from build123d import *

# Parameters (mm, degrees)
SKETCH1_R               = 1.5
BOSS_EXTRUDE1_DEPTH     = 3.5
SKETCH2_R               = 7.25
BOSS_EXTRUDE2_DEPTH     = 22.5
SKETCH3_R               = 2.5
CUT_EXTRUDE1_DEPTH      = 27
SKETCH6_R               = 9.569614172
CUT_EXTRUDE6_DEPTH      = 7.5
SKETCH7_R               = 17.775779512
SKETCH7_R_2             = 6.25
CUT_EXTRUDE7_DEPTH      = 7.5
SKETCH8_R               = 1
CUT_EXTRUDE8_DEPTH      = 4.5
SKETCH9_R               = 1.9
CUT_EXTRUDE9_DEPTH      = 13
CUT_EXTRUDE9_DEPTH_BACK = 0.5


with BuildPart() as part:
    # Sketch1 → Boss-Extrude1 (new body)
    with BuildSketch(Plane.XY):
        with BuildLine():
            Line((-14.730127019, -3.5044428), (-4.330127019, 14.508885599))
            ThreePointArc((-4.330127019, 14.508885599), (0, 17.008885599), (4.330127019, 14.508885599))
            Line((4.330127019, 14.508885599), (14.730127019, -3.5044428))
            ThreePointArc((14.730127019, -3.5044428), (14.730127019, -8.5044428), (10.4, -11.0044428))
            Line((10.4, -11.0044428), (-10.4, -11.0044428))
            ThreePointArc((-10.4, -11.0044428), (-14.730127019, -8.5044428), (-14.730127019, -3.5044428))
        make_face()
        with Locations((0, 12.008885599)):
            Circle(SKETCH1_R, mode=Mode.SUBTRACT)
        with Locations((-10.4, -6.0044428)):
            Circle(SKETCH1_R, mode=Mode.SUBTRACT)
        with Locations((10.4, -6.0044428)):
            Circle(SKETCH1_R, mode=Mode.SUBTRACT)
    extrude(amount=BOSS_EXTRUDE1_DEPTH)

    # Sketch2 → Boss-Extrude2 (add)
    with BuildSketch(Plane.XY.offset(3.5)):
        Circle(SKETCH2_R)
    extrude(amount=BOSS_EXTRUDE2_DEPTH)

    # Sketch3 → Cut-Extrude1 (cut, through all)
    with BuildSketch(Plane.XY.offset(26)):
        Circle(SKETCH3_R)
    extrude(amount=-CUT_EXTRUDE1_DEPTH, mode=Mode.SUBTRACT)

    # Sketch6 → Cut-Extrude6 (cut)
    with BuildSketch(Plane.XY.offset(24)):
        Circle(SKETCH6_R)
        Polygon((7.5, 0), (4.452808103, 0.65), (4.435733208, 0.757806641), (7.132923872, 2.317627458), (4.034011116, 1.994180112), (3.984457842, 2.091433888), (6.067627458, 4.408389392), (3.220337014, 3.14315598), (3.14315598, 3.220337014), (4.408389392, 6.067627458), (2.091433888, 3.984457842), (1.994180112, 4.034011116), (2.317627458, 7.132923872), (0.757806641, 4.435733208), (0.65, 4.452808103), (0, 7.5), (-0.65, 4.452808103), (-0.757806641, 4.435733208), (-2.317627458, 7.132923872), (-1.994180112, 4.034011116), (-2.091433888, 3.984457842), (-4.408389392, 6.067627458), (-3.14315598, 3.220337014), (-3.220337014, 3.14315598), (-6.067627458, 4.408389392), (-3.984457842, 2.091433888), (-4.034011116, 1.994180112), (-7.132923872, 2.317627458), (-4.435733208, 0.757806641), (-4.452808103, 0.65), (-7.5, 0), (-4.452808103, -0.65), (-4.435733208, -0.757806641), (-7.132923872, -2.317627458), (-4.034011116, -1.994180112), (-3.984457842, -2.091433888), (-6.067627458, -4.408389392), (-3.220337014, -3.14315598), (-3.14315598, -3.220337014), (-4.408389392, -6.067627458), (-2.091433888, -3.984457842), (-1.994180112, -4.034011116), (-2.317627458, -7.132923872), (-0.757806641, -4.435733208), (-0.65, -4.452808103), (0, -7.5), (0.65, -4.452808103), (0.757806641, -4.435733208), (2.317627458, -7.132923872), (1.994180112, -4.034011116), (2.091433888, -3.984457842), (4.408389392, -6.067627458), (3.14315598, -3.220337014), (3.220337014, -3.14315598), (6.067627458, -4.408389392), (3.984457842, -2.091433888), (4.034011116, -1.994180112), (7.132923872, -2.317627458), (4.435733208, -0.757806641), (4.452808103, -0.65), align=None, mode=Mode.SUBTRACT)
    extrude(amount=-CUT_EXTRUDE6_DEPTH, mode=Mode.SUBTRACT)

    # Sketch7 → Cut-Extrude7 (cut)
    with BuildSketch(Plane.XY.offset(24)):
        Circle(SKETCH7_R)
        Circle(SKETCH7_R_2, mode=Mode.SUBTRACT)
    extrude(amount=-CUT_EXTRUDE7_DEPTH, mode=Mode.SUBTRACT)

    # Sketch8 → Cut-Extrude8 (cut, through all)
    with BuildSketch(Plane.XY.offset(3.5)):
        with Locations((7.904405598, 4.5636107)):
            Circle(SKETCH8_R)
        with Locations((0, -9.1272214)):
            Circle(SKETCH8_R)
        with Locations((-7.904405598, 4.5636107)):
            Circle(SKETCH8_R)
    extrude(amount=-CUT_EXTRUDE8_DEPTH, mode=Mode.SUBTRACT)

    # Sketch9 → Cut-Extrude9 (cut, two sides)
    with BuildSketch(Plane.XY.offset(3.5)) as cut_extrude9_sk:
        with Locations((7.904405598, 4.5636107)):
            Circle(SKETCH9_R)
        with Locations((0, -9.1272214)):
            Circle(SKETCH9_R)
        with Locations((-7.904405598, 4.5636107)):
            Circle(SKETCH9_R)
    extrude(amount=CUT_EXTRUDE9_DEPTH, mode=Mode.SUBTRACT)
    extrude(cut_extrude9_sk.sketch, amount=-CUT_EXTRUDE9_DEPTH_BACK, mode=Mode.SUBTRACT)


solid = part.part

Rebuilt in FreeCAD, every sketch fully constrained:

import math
import FreeCAD as App
import Part
import Sketcher

V = App.Vector
Q = App.Units.Quantity

doc = App.newDocument("Part")
params = doc.addObject("Spreadsheet::Sheet", "Params")
for row, (alias, value) in enumerate([
    ("sketch1_diameter", "3 mm"),
    ("sketch1_radius", "5 mm"),
    ("sketch1_width", "20.8 mm"),
    ("pad1_length", "3.5 mm"),
    ("sketch2_diameter", "14.5 mm"),
    ("pad2_length", "22.5 mm"),
    ("sketch3_diameter", "5 mm"),
    ("pocket2_length", "7.5 mm"),
    ("sketch5_diameter", "12.5 mm"),
    ("pocket3_length", "7.5 mm"),
    ("sketch6_diameter", "2 mm"),
    ("sketch7_diameter", "3.8 mm"),
    ("pocket5_length", "13 mm"),
    ("pocket5_length2", "0.5 mm"),
], start=1):
    params.set(f"A{row}", alias)
    params.set(f"B{row}", "=" + value)
    params.setAlias(f"B{row}", alias)

body = doc.addObject("PartDesign::Body", "Body")

# Sketch on XY plane
sketch1 = body.newObject("Sketcher::SketchObject", "Sketch")
sketch1.AttachmentSupport = (doc.getObject("XY_Plane"), [""])
sketch1.MapMode = "FlatFace"
sketch1.addGeometry(Part.LineSegment(V(-4.3, 14.5, 0), V(-14.7, -3.5, 0)), False)
sketch1.addGeometry(Part.ArcOfCircle(Part.Circle(V(-10.4, -6, 0), V(0, 0, 1), 5), math.radians(150), math.radians(270)), False)
sketch1.addGeometry(Part.LineSegment(V(-10.4, -11, 0), V(10.4, -11, 0)), False)
sketch1.addGeometry(Part.ArcOfCircle(Part.Circle(V(10.4, -6, 0), V(0, 0, 1), 5), math.radians(-90), math.radians(30)), False)
sketch1.addGeometry(Part.LineSegment(V(14.7, -3.5, 0), V(4.3, 14.5, 0)), False)
sketch1.addGeometry(Part.ArcOfCircle(Part.Circle(V(0, 12, 0), V(0, 0, 1), 5), math.radians(30), math.radians(150)), False)
sketch1.addGeometry(Part.Circle(V(10.4, -6, 0), V(0, 0, 1), 1.5), False)
sketch1.addGeometry(Part.Circle(V(-10.4, -6, 0), V(0, 0, 1), 1.5), False)
sketch1.addGeometry(Part.Circle(V(0, 12, 0), V(0, 0, 1), 1.5), False)
sketch1.addConstraint(Sketcher.Constraint("Tangent", 0, 2, 1, 1))
sketch1.addConstraint(Sketcher.Constraint("Tangent", 1, 2, 2, 1))
sketch1.addConstraint(Sketcher.Constraint("Tangent", 2, 2, 3, 1))
sketch1.addConstraint(Sketcher.Constraint("Tangent", 3, 2, 4, 1))
sketch1.addConstraint(Sketcher.Constraint("Tangent", 4, 2, 5, 1))
sketch1.addConstraint(Sketcher.Constraint("Tangent", 5, 2, 0, 1))
sketch1.addConstraint(Sketcher.Constraint("Horizontal", 2))
sketch1.addConstraint(Sketcher.Constraint("Coincident", 6, 3, 3, 3))
sketch1.addConstraint(Sketcher.Constraint("Coincident", 7, 3, 1, 3))
sketch1.addConstraint(Sketcher.Constraint("Coincident", 8, 3, 5, 3))
sketch1.addConstraint(Sketcher.Constraint("Equal", 1, 3))
sketch1.addConstraint(Sketcher.Constraint("Equal", 3, 5))
sketch1.addConstraint(Sketcher.Constraint("Equal", 6, 7))
sketch1.addConstraint(Sketcher.Constraint("Equal", 7, 8))
sketch1.addConstraint(Sketcher.Constraint("Symmetric", 0, 2, 3, 2, -2))
sketch1.addConstraint(Sketcher.Constraint("Diameter", 6, Q("3 mm")))
sketch1.addConstraint(Sketcher.Constraint("Radius", 1, Q("5 mm")))
sketch1.addConstraint(Sketcher.Constraint("Angle", 0, Q("-120 deg")))
sketch1.addConstraint(Sketcher.Constraint("DistanceX", 2, 1, 2, 2, Q("20.8 mm")))
sketch1.addConstraint(Sketcher.Constraint("DistanceY", 1, 3, -1, 1, Q("6.004443 mm")))
sketch1.setExpression("Constraints[15]", "Params.sketch1_diameter")
sketch1.setExpression("Constraints[16]", "Params.sketch1_radius")
sketch1.setExpression("Constraints[18]", "Params.sketch1_width")
pad1 = body.newObject("PartDesign::Pad", "Pad")
pad1.Profile = sketch1
pad1.setExpression("Length", "Params.pad1_length")

# Sketch on XY plane
sketch2 = body.newObject("Sketcher::SketchObject", "Sketch001")
sketch2.AttachmentSupport = (doc.getObject("XY_Plane"), [""])
sketch2.MapMode = "FlatFace"
sketch2.AttachmentOffset = App.Placement(V(0, 0, 3.5), App.Rotation())
sketch2.addGeometry(Part.Circle(V(0, 0, 0), V(0, 0, 1), 7), False)
sketch2.addConstraint(Sketcher.Constraint("Coincident", 0, 3, -1, 1))
sketch2.addConstraint(Sketcher.Constraint("Diameter", 0, Q("14.5 mm")))
sketch2.setExpression("Constraints[1]", "Params.sketch2_diameter")
pad2 = body.newObject("PartDesign::Pad", "Pad001")
pad2.Profile = sketch2
pad2.setExpression("Length", "Params.pad2_length")

# Sketch on XY plane
sketch3 = body.newObject("Sketcher::SketchObject", "Sketch002")
sketch3.AttachmentSupport = (doc.getObject("XY_Plane"), [""])
sketch3.MapMode = "FlatFace"
sketch3.AttachmentOffset = App.Placement(V(0, 0, 26), App.Rotation())
sketch3.addGeometry(Part.Circle(V(0, 0, 0), V(0, 0, 1), 2.5), False)
sketch3.addConstraint(Sketcher.Constraint("Coincident", 0, 3, -1, 1))
sketch3.addConstraint(Sketcher.Constraint("Diameter", 0, Q("5 mm")))
sketch3.setExpression("Constraints[1]", "Params.sketch3_diameter")
pocket1 = body.newObject("PartDesign::Pocket", "Pocket")
pocket1.Profile = sketch3
pocket1.Type = "ThroughAll"

# Sketch on XY plane
sketch4 = body.newObject("Sketcher::SketchObject", "Sketch003")
sketch4.AttachmentSupport = (doc.getObject("XY_Plane"), [""])
sketch4.MapMode = "FlatFace"
sketch4.AttachmentOffset = App.Placement(V(0, 0, 24), App.Rotation())
sketch4.addGeometry(Part.Circle(V(0, 0, 0), V(0, 0, 1), 9.57), False)
sketch4.addGeometry(Part.LineSegment(V(4.45, 0.65, 0), V(7.5, 0, 0)), False)
sketch4.addGeometry(Part.LineSegment(V(7.5, 0, 0), V(4.45, -0.65, 0)), False)
sketch4.addGeometry(Part.LineSegment(V(4.45, -0.65, 0), V(4.44, -0.76, 0)), False)
sketch4.addGeometry(Part.LineSegment(V(4.44, -0.76, 0), V(7.13, -2.32, 0)), False)
sketch4.addGeometry(Part.LineSegment(V(7.13, -2.32, 0), V(4.03, -1.99, 0)), False)
sketch4.addGeometry(Part.LineSegment(V(4.03, -1.99, 0), V(3.98, -2.09, 0)), False)
sketch4.addGeometry(Part.LineSegment(V(3.98, -2.09, 0), V(6.07, -4.41, 0)), False)
sketch4.addGeometry(Part.LineSegment(V(6.07, -4.41, 0), V(3.22, -3.14, 0)), False)
sketch4.addGeometry(Part.LineSegment(V(3.22, -3.14, 0), V(3.14, -3.22, 0)), False)
sketch4.addGeometry(Part.LineSegment(V(3.14, -3.22, 0), V(4.41, -6.07, 0)), False)
sketch4.addGeometry(Part.LineSegment(V(4.41, -6.07, 0), V(2.09, -3.98, 0)), False)
sketch4.addGeometry(Part.LineSegment(V(2.09, -3.98, 0), V(1.99, -4.03, 0)), False)
sketch4.addGeometry(Part.LineSegment(V(1.99, -4.03, 0), V(2.32, -7.13, 0)), False)
sketch4.addGeometry(Part.LineSegment(V(2.32, -7.13, 0), V(0.76, -4.44, 0)), False)
sketch4.addGeometry(Part.LineSegment(V(0.76, -4.44, 0), V(0.65, -4.45, 0)), False)
sketch4.addGeometry(Part.LineSegment(V(0.65, -4.45, 0), V(0, -7.5, 0)), False)
sketch4.addGeometry(Part.LineSegment(V(0, -7.5, 0), V(-0.65, -4.45, 0)), False)
sketch4.addGeometry(Part.LineSegment(V(-0.65, -4.45, 0), V(-0.76, -4.44, 0)), False)
sketch4.addGeometry(Part.LineSegment(V(-0.76, -4.44, 0), V(-2.32, -7.13, 0)), False)
sketch4.addGeometry(Part.LineSegment(V(-2.32, -7.13, 0), V(-1.99, -4.03, 0)), False)
sketch4.addGeometry(Part.LineSegment(V(-1.99, -4.03, 0), V(-2.09, -3.98, 0)), False)
sketch4.addGeometry(Part.LineSegment(V(-2.09, -3.98, 0), V(-4.41, -6.07, 0)), False)
sketch4.addGeometry(Part.LineSegment(V(-4.41, -6.07, 0), V(-3.14, -3.22, 0)), False)
sketch4.addGeometry(Part.LineSegment(V(-3.14, -3.22, 0), V(-3.22, -3.14, 0)), False)
sketch4.addGeometry(Part.LineSegment(V(-3.22, -3.14, 0), V(-6.07, -4.41, 0)), False)
sketch4.addGeometry(Part.LineSegment(V(-6.07, -4.41, 0), V(-3.98, -2.09, 0)), False)
sketch4.addGeometry(Part.LineSegment(V(-3.98, -2.09, 0), V(-4.03, -1.99, 0)), False)
sketch4.addGeometry(Part.LineSegment(V(-4.03, -1.99, 0), V(-7.13, -2.32, 0)), False)
sketch4.addGeometry(Part.LineSegment(V(-7.13, -2.32, 0), V(-4.44, -0.76, 0)), False)
sketch4.addGeometry(Part.LineSegment(V(-4.44, -0.76, 0), V(-4.45, -0.65, 0)), False)
sketch4.addGeometry(Part.LineSegment(V(-4.45, -0.65, 0), V(-7.5, 0, 0)), False)
sketch4.addGeometry(Part.LineSegment(V(-7.5, 0, 0), V(-4.45, 0.65, 0)), False)
sketch4.addGeometry(Part.LineSegment(V(-4.45, 0.65, 0), V(-4.44, 0.76, 0)), False)
sketch4.addGeometry(Part.LineSegment(V(-4.44, 0.76, 0), V(-7.13, 2.32, 0)), False)
sketch4.addGeometry(Part.LineSegment(V(-7.13, 2.32, 0), V(-4.03, 1.99, 0)), False)
sketch4.addGeometry(Part.LineSegment(V(-4.03, 1.99, 0), V(-3.98, 2.09, 0)), False)
sketch4.addGeometry(Part.LineSegment(V(-3.98, 2.09, 0), V(-6.07, 4.41, 0)), False)
sketch4.addGeometry(Part.LineSegment(V(-6.07, 4.41, 0), V(-3.22, 3.14, 0)), False)
sketch4.addGeometry(Part.LineSegment(V(-3.22, 3.14, 0), V(-3.14, 3.22, 0)), False)
sketch4.addGeometry(Part.LineSegment(V(-3.14, 3.22, 0), V(-4.41, 6.07, 0)), False)
sketch4.addGeometry(Part.LineSegment(V(-4.41, 6.07, 0), V(-2.09, 3.98, 0)), False)
sketch4.addGeometry(Part.LineSegment(V(-2.09, 3.98, 0), V(-1.99, 4.03, 0)), False)
sketch4.addGeometry(Part.LineSegment(V(-1.99, 4.03, 0), V(-2.32, 7.13, 0)), False)
sketch4.addGeometry(Part.LineSegment(V(-2.32, 7.13, 0), V(-0.76, 4.44, 0)), False)
sketch4.addGeometry(Part.LineSegment(V(-0.76, 4.44, 0), V(-0.65, 4.45, 0)), False)
sketch4.addGeometry(Part.LineSegment(V(-0.65, 4.45, 0), V(0, 7.5, 0)), False)
sketch4.addGeometry(Part.LineSegment(V(0, 7.5, 0), V(0.65, 4.45, 0)), False)
sketch4.addGeometry(Part.LineSegment(V(0.65, 4.45, 0), V(0.76, 4.44, 0)), False)
sketch4.addGeometry(Part.LineSegment(V(0.76, 4.44, 0), V(2.32, 7.13, 0)), False)
sketch4.addGeometry(Part.LineSegment(V(2.32, 7.13, 0), V(1.99, 4.03, 0)), False)
sketch4.addGeometry(Part.LineSegment(V(1.99, 4.03, 0), V(2.09, 3.98, 0)), False)
sketch4.addGeometry(Part.LineSegment(V(2.09, 3.98, 0), V(4.41, 6.07, 0)), False)
sketch4.addGeometry(Part.LineSegment(V(4.41, 6.07, 0), V(3.14, 3.22, 0)), False)
sketch4.addGeometry(Part.LineSegment(V(3.14, 3.22, 0), V(3.22, 3.14, 0)), False)
sketch4.addGeometry(Part.LineSegment(V(3.22, 3.14, 0), V(6.07, 4.41, 0)), False)
sketch4.addGeometry(Part.LineSegment(V(6.07, 4.41, 0), V(3.98, 2.09, 0)), False)
sketch4.addGeometry(Part.LineSegment(V(3.98, 2.09, 0), V(4.03, 1.99, 0)), False)
sketch4.addGeometry(Part.LineSegment(V(4.03, 1.99, 0), V(7.13, 2.32, 0)), False)
sketch4.addGeometry(Part.LineSegment(V(7.13, 2.32, 0), V(4.44, 0.76, 0)), False)
sketch4.addGeometry(Part.LineSegment(V(4.44, 0.76, 0), V(4.45, 0.65, 0)), False)
sketch4.addConstraint(Sketcher.Constraint("Coincident", 1, 2, 2, 1))
sketch4.addConstraint(Sketcher.Constraint("Coincident", 2, 2, 3, 1))
sketch4.addConstraint(Sketcher.Constraint("Coincident", 3, 2, 4, 1))
sketch4.addConstraint(Sketcher.Constraint("Coincident", 4, 2, 5, 1))
sketch4.addConstraint(Sketcher.Constraint("Coincident", 5, 2, 6, 1))
sketch4.addConstraint(Sketcher.Constraint("Coincident", 6, 2, 7, 1))
sketch4.addConstraint(Sketcher.Constraint("Coincident", 7, 2, 8, 1))
sketch4.addConstraint(Sketcher.Constraint("Coincident", 8, 2, 9, 1))
sketch4.addConstraint(Sketcher.Constraint("Coincident", 9, 2, 10, 1))
sketch4.addConstraint(Sketcher.Constraint("Coincident", 10, 2, 11, 1))
sketch4.addConstraint(Sketcher.Constraint("Coincident", 11, 2, 12, 1))
sketch4.addConstraint(Sketcher.Constraint("Coincident", 12, 2, 13, 1))
sketch4.addConstraint(Sketcher.Constraint("Coincident", 13, 2, 14, 1))
sketch4.addConstraint(Sketcher.Constraint("Coincident", 14, 2, 15, 1))
sketch4.addConstraint(Sketcher.Constraint("Coincident", 15, 2, 16, 1))
sketch4.addConstraint(Sketcher.Constraint("Coincident", 16, 2, 17, 1))
sketch4.addConstraint(Sketcher.Constraint("Coincident", 17, 2, 18, 1))
sketch4.addConstraint(Sketcher.Constraint("Coincident", 18, 2, 19, 1))
sketch4.addConstraint(Sketcher.Constraint("Coincident", 19, 2, 20, 1))
sketch4.addConstraint(Sketcher.Constraint("Coincident", 20, 2, 21, 1))
sketch4.addConstraint(Sketcher.Constraint("Coincident", 21, 2, 22, 1))
sketch4.addConstraint(Sketcher.Constraint("Coincident", 22, 2, 23, 1))
sketch4.addConstraint(Sketcher.Constraint("Coincident", 23, 2, 24, 1))
sketch4.addConstraint(Sketcher.Constraint("Coincident", 24, 2, 25, 1))
sketch4.addConstraint(Sketcher.Constraint("Coincident", 25, 2, 26, 1))
sketch4.addConstraint(Sketcher.Constraint("Coincident", 26, 2, 27, 1))
sketch4.addConstraint(Sketcher.Constraint("Coincident", 27, 2, 28, 1))
sketch4.addConstraint(Sketcher.Constraint("Coincident", 28, 2, 29, 1))
sketch4.addConstraint(Sketcher.Constraint("Coincident", 29, 2, 30, 1))
sketch4.addConstraint(Sketcher.Constraint("Coincident", 30, 2, 31, 1))
sketch4.addConstraint(Sketcher.Constraint("Coincident", 31, 2, 32, 1))
sketch4.addConstraint(Sketcher.Constraint("Coincident", 32, 2, 33, 1))
sketch4.addConstraint(Sketcher.Constraint("Coincident", 33, 2, 34, 1))
sketch4.addConstraint(Sketcher.Constraint("Coincident", 34, 2, 35, 1))
sketch4.addConstraint(Sketcher.Constraint("Coincident", 35, 2, 36, 1))
sketch4.addConstraint(Sketcher.Constraint("Coincident", 36, 2, 37, 1))
sketch4.addConstraint(Sketcher.Constraint("Coincident", 37, 2, 38, 1))
sketch4.addConstraint(Sketcher.Constraint("Coincident", 38, 2, 39, 1))
sketch4.addConstraint(Sketcher.Constraint("Coincident", 39, 2, 40, 1))
sketch4.addConstraint(Sketcher.Constraint("Coincident", 40, 2, 41, 1))
sketch4.addConstraint(Sketcher.Constraint("Coincident", 41, 2, 42, 1))
sketch4.addConstraint(Sketcher.Constraint("Coincident", 42, 2, 43, 1))
sketch4.addConstraint(Sketcher.Constraint("Coincident", 43, 2, 44, 1))
sketch4.addConstraint(Sketcher.Constraint("Coincident", 44, 2, 45, 1))
sketch4.addConstraint(Sketcher.Constraint("Coincident", 45, 2, 46, 1))
sketch4.addConstraint(Sketcher.Constraint("Coincident", 46, 2, 47, 1))
sketch4.addConstraint(Sketcher.Constraint("Coincident", 47, 2, 48, 1))
sketch4.addConstraint(Sketcher.Constraint("Coincident", 48, 2, 49, 1))
sketch4.addConstraint(Sketcher.Constraint("Coincident", 49, 2, 50, 1))
sketch4.addConstraint(Sketcher.Constraint("Coincident", 50, 2, 51, 1))
sketch4.addConstraint(Sketcher.Constraint("Coincident", 51, 2, 52, 1))
sketch4.addConstraint(Sketcher.Constraint("Coincident", 52, 2, 53, 1))
sketch4.addConstraint(Sketcher.Constraint("Coincident", 53, 2, 54, 1))
sketch4.addConstraint(Sketcher.Constraint("Coincident", 54, 2, 55, 1))
sketch4.addConstraint(Sketcher.Constraint("Coincident", 55, 2, 56, 1))
sketch4.addConstraint(Sketcher.Constraint("Coincident", 56, 2, 57, 1))
sketch4.addConstraint(Sketcher.Constraint("Coincident", 57, 2, 58, 1))
sketch4.addConstraint(Sketcher.Constraint("Coincident", 58, 2, 59, 1))
sketch4.addConstraint(Sketcher.Constraint("Coincident", 59, 2, 60, 1))
sketch4.addConstraint(Sketcher.Constraint("Coincident", 60, 2, 1, 1))
sketch4.addConstraint(Sketcher.Constraint("Coincident", 0, 3, -1, 1))
sketch4.addConstraint(Sketcher.Constraint("Symmetric", 1, 2, 31, 2, -1, 1))
sketch4.addConstraint(Sketcher.Constraint("Symmetric", 2, 2, 32, 2, -1, 1))
sketch4.addConstraint(Sketcher.Constraint("Symmetric", 3, 2, 33, 2, -1, 1))
sketch4.addConstraint(Sketcher.Constraint("Symmetric", 4, 2, 34, 2, -1, 1))
sketch4.addConstraint(Sketcher.Constraint("Symmetric", 5, 2, 35, 2, -1, 1))
sketch4.addConstraint(Sketcher.Constraint("Symmetric", 6, 2, 36, 2, -1, 1))
sketch4.addConstraint(Sketcher.Constraint("Symmetric", 7, 2, 37, 2, -1, 1))
sketch4.addConstraint(Sketcher.Constraint("Symmetric", 8, 2, 38, 2, -1, 1))
sketch4.addConstraint(Sketcher.Constraint("Symmetric", 9, 2, 39, 2, -1, 1))
sketch4.addConstraint(Sketcher.Constraint("Symmetric", 10, 2, 40, 2, -1, 1))
sketch4.addConstraint(Sketcher.Constraint("Symmetric", 11, 2, 41, 2, -1, 1))
sketch4.addConstraint(Sketcher.Constraint("Symmetric", 12, 2, 42, 2, -1, 1))
sketch4.addConstraint(Sketcher.Constraint("Symmetric", 13, 2, 43, 2, -1, 1))
sketch4.addConstraint(Sketcher.Constraint("Symmetric", 14, 2, 44, 2, -1, 1))
sketch4.addConstraint(Sketcher.Constraint("Symmetric", 15, 2, 45, 2, -1, 1))
sketch4.addConstraint(Sketcher.Constraint("Symmetric", 16, 2, 46, 2, -1, 1))
sketch4.addConstraint(Sketcher.Constraint("Symmetric", 17, 2, 47, 2, -1, 1))
sketch4.addConstraint(Sketcher.Constraint("Symmetric", 18, 2, 48, 2, -1, 1))
sketch4.addConstraint(Sketcher.Constraint("Symmetric", 19, 2, 49, 2, -1, 1))
sketch4.addConstraint(Sketcher.Constraint("Symmetric", 20, 2, 50, 2, -1, 1))
sketch4.addConstraint(Sketcher.Constraint("Symmetric", 21, 2, 51, 2, -1, 1))
sketch4.addConstraint(Sketcher.Constraint("Symmetric", 22, 2, 52, 2, -1, 1))
sketch4.addConstraint(Sketcher.Constraint("Symmetric", 23, 2, 53, 2, -1, 1))
sketch4.addConstraint(Sketcher.Constraint("Symmetric", 24, 2, 54, 2, -1, 1))
sketch4.addConstraint(Sketcher.Constraint("Symmetric", 25, 2, 55, 2, -1, 1))
sketch4.addConstraint(Sketcher.Constraint("Symmetric", 26, 2, 56, 2, -1, 1))
sketch4.addConstraint(Sketcher.Constraint("Symmetric", 27, 2, 57, 2, -1, 1))
sketch4.addConstraint(Sketcher.Constraint("Symmetric", 28, 2, 58, 2, -1, 1))
sketch4.addConstraint(Sketcher.Constraint("Symmetric", 29, 2, 59, 2, -1, 1))
sketch4.addConstraint(Sketcher.Constraint("Symmetric", 30, 2, 60, 2, -1, 1))
sketch4.addConstraint(Sketcher.Constraint("Symmetric", 15, 2, 17, 2, -2))
sketch4.addConstraint(Sketcher.Constraint("Symmetric", 14, 2, 18, 2, -2))
sketch4.addConstraint(Sketcher.Constraint("Symmetric", 13, 2, 19, 2, -2))
sketch4.addConstraint(Sketcher.Constraint("Symmetric", 12, 2, 20, 2, -2))
sketch4.addConstraint(Sketcher.Constraint("Symmetric", 11, 2, 21, 2, -2))
sketch4.addConstraint(Sketcher.Constraint("Symmetric", 10, 2, 22, 2, -2))
sketch4.addConstraint(Sketcher.Constraint("Symmetric", 9, 2, 23, 2, -2))
sketch4.addConstraint(Sketcher.Constraint("Symmetric", 8, 2, 24, 2, -2))
sketch4.addConstraint(Sketcher.Constraint("Symmetric", 7, 2, 25, 2, -2))
sketch4.addConstraint(Sketcher.Constraint("Symmetric", 6, 2, 26, 2, -2))
sketch4.addConstraint(Sketcher.Constraint("Symmetric", 5, 2, 27, 2, -2))
sketch4.addConstraint(Sketcher.Constraint("Symmetric", 4, 2, 28, 2, -2))
sketch4.addConstraint(Sketcher.Constraint("Symmetric", 3, 2, 29, 2, -2))
sketch4.addConstraint(Sketcher.Constraint("Symmetric", 2, 2, 30, 2, -2))
sketch4.addConstraint(Sketcher.Constraint("PointOnObject", 1, 2, -1))
sketch4.addConstraint(Sketcher.Constraint("PointOnObject", 16, 2, -2))
sketch4.addConstraint(Sketcher.Constraint("Perpendicular", 1, 16))
sketch4.addConstraint(Sketcher.Constraint("Perpendicular", 3, 18))
sketch4.addConstraint(Sketcher.Constraint("Perpendicular", 4, 19))
sketch4.addConstraint(Sketcher.Constraint("Perpendicular", 5, 20))
sketch4.addConstraint(Sketcher.Constraint("Perpendicular", 6, 21))
sketch4.addConstraint(Sketcher.Constraint("Perpendicular", 7, 22))
sketch4.addConstraint(Sketcher.Constraint("Perpendicular", 8, 23))
sketch4.addConstraint(Sketcher.Constraint("Perpendicular", 9, 24))
sketch4.addConstraint(Sketcher.Constraint("Equal", 2, 4))
sketch4.addConstraint(Sketcher.Constraint("Equal", 4, 5))
sketch4.addConstraint(Sketcher.Constraint("Equal", 3, 6))
sketch4.addConstraint(Sketcher.Constraint("Equal", 5, 7))
sketch4.addConstraint(Sketcher.Constraint("Equal", 7, 8))
sketch4.addConstraint(Sketcher.Constraint("Equal", 6, 9))
sketch4.addConstraint(Sketcher.Constraint("Equal", 8, 10))
sketch4.addConstraint(Sketcher.Constraint("Equal", 10, 11))
sketch4.addConstraint(Sketcher.Constraint("Equal", 9, 12))
sketch4.addConstraint(Sketcher.Constraint("Equal", 11, 13))
sketch4.addConstraint(Sketcher.Constraint("Equal", 13, 14))
sketch4.addConstraint(Sketcher.Constraint("Equal", 12, 15))
sketch4.addConstraint(Sketcher.Constraint("Equal", 14, 16))
sketch4.addConstraint(Sketcher.Constraint("Angle", 3, Q("-99 deg")))
sketch4.addConstraint(Sketcher.Constraint("Angle", 6, Q("-117 deg")))
sketch4.addConstraint(Sketcher.Constraint("DistanceX", -1, 1, 1, 2, Q("7.5 mm")))
sketch4.addConstraint(Sketcher.Constraint("Diameter", 0, Q("19.139228 mm")))
sketch4.addConstraint(Sketcher.Constraint("DistanceY", 2, 2, -1, 1, Q("0.65 mm")))
sketch4.addConstraint(Sketcher.Constraint("Distance", 3, Q("0.10915 mm")))
sketch4.addConstraint(Sketcher.Constraint("DistanceX", -1, 1, 2, 2, Q("4.452808 mm")))
sketch4.addConstraint(Sketcher.Constraint("DistanceX", -1, 1, 5, 2, Q("4.034011 mm")))
sketch4.addConstraint(Sketcher.Constraint("DistanceY", 5, 2, -1, 1, Q("1.99418 mm")))
sketch4.addConstraint(Sketcher.Constraint("DistanceY", 7, 2, -1, 1, Q("4.408389 mm")))
pocket2 = body.newObject("PartDesign::Pocket", "Pocket001")
pocket2.Profile = sketch4
pocket2.setExpression("Length", "Params.pocket2_length")

# Sketch on XY plane
sketch5 = body.newObject("Sketcher::SketchObject", "Sketch004")
sketch5.AttachmentSupport = (doc.getObject("XY_Plane"), [""])
sketch5.MapMode = "FlatFace"
sketch5.AttachmentOffset = App.Placement(V(0, 0, 24), App.Rotation())
sketch5.addGeometry(Part.Circle(V(0, 0, 0), V(0, 0, 1), 18), False)
sketch5.addGeometry(Part.Circle(V(0, 0, 0), V(0, 0, 1), 6), False)
sketch5.addConstraint(Sketcher.Constraint("Coincident", 0, 3, -1, 1))
sketch5.addConstraint(Sketcher.Constraint("Coincident", 1, 3, -1, 1))
sketch5.addConstraint(Sketcher.Constraint("Diameter", 1, Q("12.5 mm")))
sketch5.addConstraint(Sketcher.Constraint("Diameter", 0, Q("35.551559 mm")))
sketch5.setExpression("Constraints[2]", "Params.sketch5_diameter")
pocket3 = body.newObject("PartDesign::Pocket", "Pocket002")
pocket3.Profile = sketch5
pocket3.setExpression("Length", "Params.pocket3_length")

# Sketch on XY plane
sketch6 = body.newObject("Sketcher::SketchObject", "Sketch005")
sketch6.AttachmentSupport = (doc.getObject("XY_Plane"), [""])
sketch6.MapMode = "FlatFace"
sketch6.AttachmentOffset = App.Placement(V(0, 0, 3.5), App.Rotation())
sketch6.addGeometry(Part.Circle(V(7.9, 4.6, 0), V(0, 0, 1), 1), False)
sketch6.addGeometry(Part.Circle(V(0, -9.1, 0), V(0, 0, 1), 1), False)
sketch6.addGeometry(Part.Circle(V(-7.9, 4.6, 0), V(0, 0, 1), 1), False)
sketch6.addConstraint(Sketcher.Constraint("Equal", 0, 1))
sketch6.addConstraint(Sketcher.Constraint("Equal", 1, 2))
sketch6.addConstraint(Sketcher.Constraint("Symmetric", 0, 3, 2, 3, -2))
sketch6.addConstraint(Sketcher.Constraint("PointOnObject", 1, 3, -2))
sketch6.addConstraint(Sketcher.Constraint("Diameter", 0, Q("2 mm")))
sketch6.addConstraint(Sketcher.Constraint("DistanceY", -1, 1, 0, 3, Q("4.563611 mm")))
sketch6.addConstraint(Sketcher.Constraint("DistanceY", 1, 3, -1, 1, Q("9.127221 mm")))
sketch6.addConstraint(Sketcher.Constraint("DistanceX", 2, 3, 0, 3, Q("15.808811 mm")))
sketch6.setExpression("Constraints[4]", "Params.sketch6_diameter")
pocket4 = body.newObject("PartDesign::Pocket", "Pocket003")
pocket4.Profile = sketch6
pocket4.Type = "ThroughAll"

# Sketch on XY plane
sketch7 = body.newObject("Sketcher::SketchObject", "Sketch006")
sketch7.AttachmentSupport = (doc.getObject("XY_Plane"), [""])
sketch7.MapMode = "FlatFace"
sketch7.AttachmentOffset = App.Placement(V(0, 0, 3.5), App.Rotation())
sketch7.addGeometry(Part.Circle(V(7.9, 4.6, 0), V(0, 0, 1), 1.9), False)
sketch7.addGeometry(Part.Circle(V(0, -9.1, 0), V(0, 0, 1), 1.9), False)
sketch7.addGeometry(Part.Circle(V(-7.9, 4.6, 0), V(0, 0, 1), 1.9), False)
sketch7.addConstraint(Sketcher.Constraint("Equal", 0, 1))
sketch7.addConstraint(Sketcher.Constraint("Equal", 1, 2))
sketch7.addConstraint(Sketcher.Constraint("Symmetric", 0, 3, 2, 3, -2))
sketch7.addConstraint(Sketcher.Constraint("PointOnObject", 1, 3, -2))
sketch7.addConstraint(Sketcher.Constraint("Diameter", 0, Q("3.8 mm")))
sketch7.addConstraint(Sketcher.Constraint("DistanceY", -1, 1, 0, 3, Q("4.563611 mm")))
sketch7.addConstraint(Sketcher.Constraint("DistanceY", 1, 3, -1, 1, Q("9.127221 mm")))
sketch7.addConstraint(Sketcher.Constraint("DistanceX", 2, 3, 0, 3, Q("15.808811 mm")))
sketch7.setExpression("Constraints[4]", "Params.sketch7_diameter")
pocket5 = body.newObject("PartDesign::Pocket", "Pocket004")
pocket5.Profile = sketch7
pocket5.Type = "TwoLengths"
pocket5.setExpression("Length", "Params.pocket5_length")
pocket5.setExpression("Length2", "Params.pocket5_length2")
pocket5.Reversed = True

doc.recompute()
